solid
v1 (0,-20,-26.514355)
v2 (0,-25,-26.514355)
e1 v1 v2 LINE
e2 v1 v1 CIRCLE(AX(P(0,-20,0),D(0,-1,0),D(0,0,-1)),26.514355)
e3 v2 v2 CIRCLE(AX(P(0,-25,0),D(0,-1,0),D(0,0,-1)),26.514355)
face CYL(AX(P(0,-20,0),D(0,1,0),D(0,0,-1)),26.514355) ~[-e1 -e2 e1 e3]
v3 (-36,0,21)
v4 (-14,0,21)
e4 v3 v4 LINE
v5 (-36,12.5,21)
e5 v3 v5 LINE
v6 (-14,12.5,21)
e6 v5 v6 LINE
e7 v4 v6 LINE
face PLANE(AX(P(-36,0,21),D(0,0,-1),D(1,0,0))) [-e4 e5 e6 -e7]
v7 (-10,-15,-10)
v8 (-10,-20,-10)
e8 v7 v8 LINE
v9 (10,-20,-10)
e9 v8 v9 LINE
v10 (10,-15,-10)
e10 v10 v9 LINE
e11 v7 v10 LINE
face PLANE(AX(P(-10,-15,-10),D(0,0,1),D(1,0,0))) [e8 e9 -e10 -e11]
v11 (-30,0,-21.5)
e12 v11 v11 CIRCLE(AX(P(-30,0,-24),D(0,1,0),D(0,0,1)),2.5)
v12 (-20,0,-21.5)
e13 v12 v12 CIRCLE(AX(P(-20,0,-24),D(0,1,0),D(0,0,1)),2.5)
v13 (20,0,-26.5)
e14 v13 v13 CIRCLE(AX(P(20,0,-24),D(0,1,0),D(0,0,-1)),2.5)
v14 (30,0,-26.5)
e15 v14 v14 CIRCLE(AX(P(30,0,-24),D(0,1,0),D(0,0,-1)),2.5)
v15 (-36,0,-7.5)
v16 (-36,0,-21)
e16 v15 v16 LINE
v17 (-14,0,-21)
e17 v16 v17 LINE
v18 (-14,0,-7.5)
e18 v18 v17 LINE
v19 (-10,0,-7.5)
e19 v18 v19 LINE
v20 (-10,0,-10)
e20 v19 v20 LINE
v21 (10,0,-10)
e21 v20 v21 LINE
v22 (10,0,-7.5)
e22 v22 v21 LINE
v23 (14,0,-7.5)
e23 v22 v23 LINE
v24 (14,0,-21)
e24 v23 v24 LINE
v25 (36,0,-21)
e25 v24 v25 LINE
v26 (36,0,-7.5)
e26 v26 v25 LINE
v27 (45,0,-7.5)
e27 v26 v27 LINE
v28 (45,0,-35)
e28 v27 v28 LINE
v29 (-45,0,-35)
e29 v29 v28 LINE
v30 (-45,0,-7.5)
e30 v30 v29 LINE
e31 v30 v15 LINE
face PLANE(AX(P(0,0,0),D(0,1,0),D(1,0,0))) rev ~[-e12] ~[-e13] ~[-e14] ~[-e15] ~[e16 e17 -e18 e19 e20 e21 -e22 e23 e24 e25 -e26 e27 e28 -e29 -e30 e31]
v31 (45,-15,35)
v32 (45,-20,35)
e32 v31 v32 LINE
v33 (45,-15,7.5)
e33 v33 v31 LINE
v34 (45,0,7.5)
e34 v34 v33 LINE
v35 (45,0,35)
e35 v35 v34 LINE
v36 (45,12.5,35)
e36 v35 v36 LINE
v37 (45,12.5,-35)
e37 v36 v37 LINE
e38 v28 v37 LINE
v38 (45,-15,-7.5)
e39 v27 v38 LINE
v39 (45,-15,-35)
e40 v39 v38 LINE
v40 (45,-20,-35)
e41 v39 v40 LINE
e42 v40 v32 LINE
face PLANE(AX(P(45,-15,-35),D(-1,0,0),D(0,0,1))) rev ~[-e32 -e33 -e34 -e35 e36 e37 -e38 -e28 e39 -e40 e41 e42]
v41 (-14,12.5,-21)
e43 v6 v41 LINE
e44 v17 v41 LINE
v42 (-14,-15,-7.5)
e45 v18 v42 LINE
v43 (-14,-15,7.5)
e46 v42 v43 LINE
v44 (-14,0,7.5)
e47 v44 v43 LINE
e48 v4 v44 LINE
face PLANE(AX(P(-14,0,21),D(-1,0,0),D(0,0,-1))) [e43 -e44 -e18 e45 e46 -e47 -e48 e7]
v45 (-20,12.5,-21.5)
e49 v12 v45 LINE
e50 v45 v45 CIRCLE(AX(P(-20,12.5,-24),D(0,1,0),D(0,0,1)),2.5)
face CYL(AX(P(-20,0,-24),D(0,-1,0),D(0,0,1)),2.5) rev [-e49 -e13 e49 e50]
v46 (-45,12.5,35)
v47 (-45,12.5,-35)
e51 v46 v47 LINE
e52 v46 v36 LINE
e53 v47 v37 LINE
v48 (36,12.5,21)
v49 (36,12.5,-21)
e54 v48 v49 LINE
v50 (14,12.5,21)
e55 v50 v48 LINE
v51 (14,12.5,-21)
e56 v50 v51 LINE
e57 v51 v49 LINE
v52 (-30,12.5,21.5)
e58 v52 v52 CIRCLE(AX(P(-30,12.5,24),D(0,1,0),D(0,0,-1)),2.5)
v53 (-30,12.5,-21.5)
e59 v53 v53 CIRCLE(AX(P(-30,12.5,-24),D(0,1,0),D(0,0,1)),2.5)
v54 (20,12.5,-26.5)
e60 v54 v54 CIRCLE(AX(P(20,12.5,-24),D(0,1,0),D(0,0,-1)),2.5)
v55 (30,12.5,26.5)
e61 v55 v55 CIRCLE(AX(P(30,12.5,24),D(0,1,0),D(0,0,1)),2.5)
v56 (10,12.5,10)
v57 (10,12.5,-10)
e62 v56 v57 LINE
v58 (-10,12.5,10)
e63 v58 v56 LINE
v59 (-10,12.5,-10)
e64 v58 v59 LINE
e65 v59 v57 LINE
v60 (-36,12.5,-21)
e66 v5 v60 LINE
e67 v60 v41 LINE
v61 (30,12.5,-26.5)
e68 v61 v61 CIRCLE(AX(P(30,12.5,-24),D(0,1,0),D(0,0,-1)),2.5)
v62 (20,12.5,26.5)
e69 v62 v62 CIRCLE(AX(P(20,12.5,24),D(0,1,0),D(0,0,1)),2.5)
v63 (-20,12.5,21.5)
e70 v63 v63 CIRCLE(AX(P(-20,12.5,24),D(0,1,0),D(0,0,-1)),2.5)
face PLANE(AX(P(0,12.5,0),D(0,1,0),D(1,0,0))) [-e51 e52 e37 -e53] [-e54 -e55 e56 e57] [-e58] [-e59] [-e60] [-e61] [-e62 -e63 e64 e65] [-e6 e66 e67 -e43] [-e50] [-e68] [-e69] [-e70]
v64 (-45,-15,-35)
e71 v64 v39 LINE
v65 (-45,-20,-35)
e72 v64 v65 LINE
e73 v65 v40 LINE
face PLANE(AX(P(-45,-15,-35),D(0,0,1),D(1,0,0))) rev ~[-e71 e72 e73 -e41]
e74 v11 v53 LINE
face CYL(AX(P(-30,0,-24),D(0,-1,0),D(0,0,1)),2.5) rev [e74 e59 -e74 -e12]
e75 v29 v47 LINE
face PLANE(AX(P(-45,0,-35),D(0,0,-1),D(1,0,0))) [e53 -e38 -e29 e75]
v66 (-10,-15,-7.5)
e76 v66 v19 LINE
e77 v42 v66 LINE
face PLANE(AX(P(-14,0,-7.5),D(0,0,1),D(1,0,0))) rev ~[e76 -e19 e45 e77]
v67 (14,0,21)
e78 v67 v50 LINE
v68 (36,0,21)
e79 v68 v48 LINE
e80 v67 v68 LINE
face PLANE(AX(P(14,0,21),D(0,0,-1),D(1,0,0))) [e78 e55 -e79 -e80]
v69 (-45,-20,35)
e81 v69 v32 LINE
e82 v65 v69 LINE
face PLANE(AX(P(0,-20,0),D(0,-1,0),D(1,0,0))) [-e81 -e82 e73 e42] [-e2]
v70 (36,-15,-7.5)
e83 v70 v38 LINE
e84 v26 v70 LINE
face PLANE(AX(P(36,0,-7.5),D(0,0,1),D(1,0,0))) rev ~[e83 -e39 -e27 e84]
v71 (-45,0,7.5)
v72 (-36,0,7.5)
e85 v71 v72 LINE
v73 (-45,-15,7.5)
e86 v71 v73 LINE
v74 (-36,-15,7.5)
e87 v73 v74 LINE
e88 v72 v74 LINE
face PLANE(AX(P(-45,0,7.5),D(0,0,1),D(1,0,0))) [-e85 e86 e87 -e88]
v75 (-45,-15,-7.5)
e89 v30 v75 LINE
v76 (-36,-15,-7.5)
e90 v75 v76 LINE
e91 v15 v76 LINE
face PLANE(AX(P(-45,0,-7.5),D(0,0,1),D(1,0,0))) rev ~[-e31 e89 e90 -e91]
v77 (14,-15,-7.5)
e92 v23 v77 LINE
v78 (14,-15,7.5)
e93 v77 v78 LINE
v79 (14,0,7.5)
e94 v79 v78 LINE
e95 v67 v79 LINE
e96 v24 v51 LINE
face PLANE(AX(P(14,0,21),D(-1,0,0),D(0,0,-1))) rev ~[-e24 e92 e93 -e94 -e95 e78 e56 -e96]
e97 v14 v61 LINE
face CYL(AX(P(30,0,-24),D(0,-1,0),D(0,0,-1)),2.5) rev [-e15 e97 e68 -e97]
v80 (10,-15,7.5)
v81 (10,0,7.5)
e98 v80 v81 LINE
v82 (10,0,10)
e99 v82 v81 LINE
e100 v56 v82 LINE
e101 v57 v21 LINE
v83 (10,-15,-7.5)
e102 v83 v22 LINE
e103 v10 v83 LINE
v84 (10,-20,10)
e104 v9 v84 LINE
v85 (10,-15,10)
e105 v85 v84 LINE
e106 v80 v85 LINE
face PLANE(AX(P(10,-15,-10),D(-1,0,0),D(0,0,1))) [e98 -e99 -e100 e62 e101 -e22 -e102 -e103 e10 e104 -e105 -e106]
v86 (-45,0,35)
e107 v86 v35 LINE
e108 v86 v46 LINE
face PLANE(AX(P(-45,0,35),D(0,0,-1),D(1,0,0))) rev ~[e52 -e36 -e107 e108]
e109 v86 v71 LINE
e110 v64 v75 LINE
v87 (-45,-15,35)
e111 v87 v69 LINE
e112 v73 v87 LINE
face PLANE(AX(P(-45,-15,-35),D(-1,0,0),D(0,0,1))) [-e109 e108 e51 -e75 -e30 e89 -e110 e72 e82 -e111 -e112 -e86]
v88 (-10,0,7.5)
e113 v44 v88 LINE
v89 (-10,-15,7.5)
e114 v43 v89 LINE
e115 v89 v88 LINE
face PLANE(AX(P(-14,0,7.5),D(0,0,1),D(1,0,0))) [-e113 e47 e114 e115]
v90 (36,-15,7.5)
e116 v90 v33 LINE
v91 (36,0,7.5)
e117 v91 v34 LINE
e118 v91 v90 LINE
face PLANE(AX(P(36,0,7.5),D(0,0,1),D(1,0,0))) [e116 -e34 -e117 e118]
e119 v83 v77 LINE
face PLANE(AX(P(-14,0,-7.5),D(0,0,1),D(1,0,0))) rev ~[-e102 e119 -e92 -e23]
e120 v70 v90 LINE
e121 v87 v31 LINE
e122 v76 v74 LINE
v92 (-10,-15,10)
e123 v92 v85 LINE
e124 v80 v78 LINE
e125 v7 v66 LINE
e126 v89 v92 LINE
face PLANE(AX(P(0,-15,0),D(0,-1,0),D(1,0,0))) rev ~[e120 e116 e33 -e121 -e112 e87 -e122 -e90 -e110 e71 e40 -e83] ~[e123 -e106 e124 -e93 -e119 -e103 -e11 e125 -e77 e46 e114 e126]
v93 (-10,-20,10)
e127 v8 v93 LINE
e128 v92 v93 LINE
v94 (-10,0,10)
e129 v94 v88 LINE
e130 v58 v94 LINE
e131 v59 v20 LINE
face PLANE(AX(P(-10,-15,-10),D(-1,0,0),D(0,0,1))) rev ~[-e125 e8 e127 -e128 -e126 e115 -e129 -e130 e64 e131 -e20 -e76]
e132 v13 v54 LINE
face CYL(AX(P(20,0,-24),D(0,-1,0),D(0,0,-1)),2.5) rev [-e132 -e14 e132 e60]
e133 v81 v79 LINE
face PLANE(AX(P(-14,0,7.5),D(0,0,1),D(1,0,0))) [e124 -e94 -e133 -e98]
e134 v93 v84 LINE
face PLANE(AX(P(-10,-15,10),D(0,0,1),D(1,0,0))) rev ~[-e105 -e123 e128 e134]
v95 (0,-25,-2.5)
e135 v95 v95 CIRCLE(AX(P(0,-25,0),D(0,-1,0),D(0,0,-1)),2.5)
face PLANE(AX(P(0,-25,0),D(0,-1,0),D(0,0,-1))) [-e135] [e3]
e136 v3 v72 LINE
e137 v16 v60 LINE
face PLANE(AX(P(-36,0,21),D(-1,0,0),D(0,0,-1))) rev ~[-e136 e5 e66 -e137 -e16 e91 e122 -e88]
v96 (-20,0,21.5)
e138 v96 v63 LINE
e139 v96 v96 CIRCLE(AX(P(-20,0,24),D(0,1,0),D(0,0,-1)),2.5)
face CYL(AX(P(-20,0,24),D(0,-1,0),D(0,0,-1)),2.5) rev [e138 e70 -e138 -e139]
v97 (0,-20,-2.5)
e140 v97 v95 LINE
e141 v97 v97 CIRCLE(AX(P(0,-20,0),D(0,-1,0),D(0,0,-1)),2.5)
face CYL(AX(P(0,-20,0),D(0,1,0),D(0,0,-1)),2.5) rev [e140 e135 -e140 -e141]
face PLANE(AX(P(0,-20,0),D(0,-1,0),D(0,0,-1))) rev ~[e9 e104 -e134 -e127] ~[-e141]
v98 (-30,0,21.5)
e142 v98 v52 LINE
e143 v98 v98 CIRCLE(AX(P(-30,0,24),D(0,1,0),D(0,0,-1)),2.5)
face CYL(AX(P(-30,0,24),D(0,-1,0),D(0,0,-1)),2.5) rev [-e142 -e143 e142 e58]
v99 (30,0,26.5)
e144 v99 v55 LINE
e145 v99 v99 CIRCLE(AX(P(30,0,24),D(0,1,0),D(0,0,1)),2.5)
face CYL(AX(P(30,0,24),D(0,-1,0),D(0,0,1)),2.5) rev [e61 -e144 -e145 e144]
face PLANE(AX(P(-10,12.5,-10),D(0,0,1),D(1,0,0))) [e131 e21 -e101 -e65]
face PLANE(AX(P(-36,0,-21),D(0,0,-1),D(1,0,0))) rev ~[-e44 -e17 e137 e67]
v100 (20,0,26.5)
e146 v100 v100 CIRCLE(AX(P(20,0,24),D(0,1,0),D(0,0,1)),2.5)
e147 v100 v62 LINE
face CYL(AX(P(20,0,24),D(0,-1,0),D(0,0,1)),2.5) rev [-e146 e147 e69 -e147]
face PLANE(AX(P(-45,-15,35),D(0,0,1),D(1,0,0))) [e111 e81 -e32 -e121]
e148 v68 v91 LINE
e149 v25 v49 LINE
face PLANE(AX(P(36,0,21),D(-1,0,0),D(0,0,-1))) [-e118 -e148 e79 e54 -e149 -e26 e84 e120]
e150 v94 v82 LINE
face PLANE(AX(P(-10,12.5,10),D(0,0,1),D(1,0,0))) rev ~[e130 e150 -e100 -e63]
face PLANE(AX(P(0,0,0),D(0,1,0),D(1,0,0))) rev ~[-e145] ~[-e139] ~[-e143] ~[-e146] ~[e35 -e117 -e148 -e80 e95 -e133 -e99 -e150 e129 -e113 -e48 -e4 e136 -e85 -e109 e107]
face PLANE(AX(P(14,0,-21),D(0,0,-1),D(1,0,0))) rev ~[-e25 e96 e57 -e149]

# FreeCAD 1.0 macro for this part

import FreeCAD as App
import Part
import Sketcher


def add_polygon(sketch, points):
    """Adds a closed chain of lines whose ends are joined by coincident constraints."""
    first, n = sketch.GeometryCount, len(points)
    for a, b in zip(points, points[1:] + points[:1]):
        sketch.addGeometry(Part.LineSegment(App.Vector(*a, 0), App.Vector(*b, 0)), False)
    for i in range(n):
        sketch.addConstraint(Sketcher.Constraint("Coincident", first + i, 2, first + (i + 1) % n, 1))

doc = App.newDocument("Part")
body = doc.addObject("PartDesign::Body", "Body")

sketch1 = body.newObject("Sketcher::SketchObject", "Sketch")
sketch1.AttachmentSupport = (doc.getObject("XZ_Plane"), [""])
sketch1.MapMode = "FlatFace"
add_polygon(sketch1, [(-45, -35), (-45, 35), (45, 35), (45, -35)])
sketch1.addGeometry(Part.Circle(App.Vector(-30, 24, 0), App.Vector(0, 0, 1), 2.5), False)
sketch1.addGeometry(Part.Circle(App.Vector(-20, 24, 0), App.Vector(0, 0, 1), 2.5), False)
sketch1.addGeometry(Part.Circle(App.Vector(20, 24, 0), App.Vector(0, 0, 1), 2.5), False)
sketch1.addGeometry(Part.Circle(App.Vector(30, 24, 0), App.Vector(0, 0, 1), 2.5), False)
add_polygon(sketch1, [(-14, 21), (-36, 21), (-36, -21), (-14, -21)])
sketch1.addGeometry(Part.Circle(App.Vector(-30, -24, 0), App.Vector(0, 0, 1), 2.5), False)
sketch1.addGeometry(Part.Circle(App.Vector(-20, -24, 0), App.Vector(0, 0, 1), 2.5), False)
add_polygon(sketch1, [(36, 21), (14, 21), (14, -21), (36, -21)])
sketch1.addGeometry(Part.Circle(App.Vector(20, -24, 0), App.Vector(0, 0, 1), 2.5), False)
sketch1.addGeometry(Part.Circle(App.Vector(30, -24, 0), App.Vector(0, 0, 1), 2.5), False)
sketch1.addConstraint(Sketcher.Constraint("Vertical", 0))
sketch1.addConstraint(Sketcher.Constraint("Horizontal", 1))
sketch1.addConstraint(Sketcher.Constraint("Vertical", 2))
sketch1.addConstraint(Sketcher.Constraint("Horizontal", 3))
sketch1.addConstraint(Sketcher.Constraint("Horizontal", 8))
sketch1.addConstraint(Sketcher.Constraint("Vertical", 9))
sketch1.addConstraint(Sketcher.Constraint("Horizontal", 10))
sketch1.addConstraint(Sketcher.Constraint("Vertical", 11))
sketch1.addConstraint(Sketcher.Constraint("Horizontal", 14))
sketch1.addConstraint(Sketcher.Constraint("Vertical", 15))
sketch1.addConstraint(Sketcher.Constraint("Horizontal", 16))
sketch1.addConstraint(Sketcher.Constraint("Vertical", 17))
sketch1.addConstraint(Sketcher.Constraint("Equal", 4, 5))
sketch1.addConstraint(Sketcher.Constraint("Equal", 5, 6))
sketch1.addConstraint(Sketcher.Constraint("Equal", 6, 7))
sketch1.addConstraint(Sketcher.Constraint("Equal", 7, 12))
sketch1.addConstraint(Sketcher.Constraint("Equal", 12, 13))
sketch1.addConstraint(Sketcher.Constraint("Equal", 13, 18))
sketch1.addConstraint(Sketcher.Constraint("Equal", 18, 19))
sketch1.addConstraint(Sketcher.Constraint("Symmetric", 7, 3, 12, 3, -1, 1))
sketch1.addConstraint(Sketcher.Constraint("Symmetric", 6, 3, 13, 3, -1, 1))
sketch1.addConstraint(Sketcher.Constraint("Symmetric", 5, 3, 18, 3, -1, 1))
sketch1.addConstraint(Sketcher.Constraint("Symmetric", 4, 3, 19, 3, -1, 1))
sketch1.addConstraint(Sketcher.Constraint("Symmetric", 0, 2, 2, 2, -1, 1))
sketch1.addConstraint(Sketcher.Constraint("Symmetric", 10, 2, 14, 2, -1, 1))
sketch1.addConstraint(Sketcher.Constraint("Symmetric", 8, 2, 16, 2, -1, 1))
sketch1.addConstraint(Sketcher.Constraint("Symmetric", 5, 3, 6, 3, -2))
sketch1.addConstraint(Sketcher.Constraint("Symmetric", 4, 3, 7, 3, -2))
sketch1.addConstraint(Sketcher.Constraint("Horizontal", 4, 3, 5, 3))
sketch1.addConstraint(Sketcher.Constraint("Horizontal", 11, 2, 14, 2))
sketch1.addConstraint(Sketcher.Constraint("Diameter", 4, 5.0))
sketch1.addConstraint(Sketcher.Constraint("DistanceX", 1, 1, 1, 2, 90.0))
sketch1.addConstraint(Sketcher.Constraint("DistanceX", 8, 2, 8, 1, 22.0))
sketch1.addConstraint(Sketcher.Constraint("DistanceY", 0, 1, 0, 2, 70.0))
sketch1.addConstraint(Sketcher.Constraint("DistanceY", 9, 2, 9, 1, 42.0))
sketch1.addConstraint(Sketcher.Constraint("DistanceX", 4, 3, -1, 1, 30.0))
sketch1.addConstraint(Sketcher.Constraint("DistanceY", -1, 1, 4, 3, 24.0))
sketch1.addConstraint(Sketcher.Constraint("DistanceX", 5, 3, -1, 1, 20.0))
sketch1.addConstraint(Sketcher.Constraint("DistanceX", 8, 2, -1, 1, 36.0))
pad1 = body.newObject("PartDesign::Pad", "Pad")
pad1.Profile = sketch1
pad1.Length = 12.5
pad1.Reversed = True

sketch2 = body.newObject("Sketcher::SketchObject", "Sketch001")
sketch2.AttachmentSupport = (doc.getObject("XZ_Plane"), [""])
sketch2.MapMode = "FlatFace"
add_polygon(sketch2, [(-45, 7.5), (-45, -7.5), (-36, -7.5), (-36, 7.5)])
add_polygon(sketch2, [(-14, 7.5), (-14, -7.5), (14, -7.5), (14, 7.5)])
add_polygon(sketch2, [(36, 7.5), (36, -7.5), (45, -7.5), (45, 7.5)])
sketch2.addConstraint(Sketcher.Constraint("Vertical", 0))
sketch2.addConstraint(Sketcher.Constraint("Horizontal", 1))
sketch2.addConstraint(Sketcher.Constraint("Vertical", 2))
sketch2.addConstraint(Sketcher.Constraint("Horizontal", 3))
sketch2.addConstraint(Sketcher.Constraint("Vertical", 4))
sketch2.addConstraint(Sketcher.Constraint("Horizontal", 5))
sketch2.addConstraint(Sketcher.Constraint("Vertical", 6))
sketch2.addConstraint(Sketcher.Constraint("Horizontal", 7))
sketch2.addConstraint(Sketcher.Constraint("Vertical", 8))
sketch2.addConstraint(Sketcher.Constraint("Horizontal", 9))
sketch2.addConstraint(Sketcher.Constraint("Vertical", 10))
sketch2.addConstraint(Sketcher.Constraint("Horizontal", 11))
sketch2.addConstraint(Sketcher.Constraint("Symmetric", 4, 2, 6, 2, -1, 1))
sketch2.addConstraint(Sketcher.Constraint("Symmetric", 2, 2, 8, 2, -1, 1))
sketch2.addConstraint(Sketcher.Constraint("Symmetric", 0, 2, 10, 2, -1, 1))
sketch2.addConstraint(Sketcher.Constraint("Horizontal", 1, 2, 4, 2))
sketch2.addConstraint(Sketcher.Constraint("Horizontal", 3, 2, 6, 2))
sketch2.addConstraint(Sketcher.Constraint("DistanceX", 1, 1, 1, 2, 9.0))
sketch2.addConstraint(Sketcher.Constraint("DistanceX", 5, 1, 5, 2, 28.0))
sketch2.addConstraint(Sketcher.Constraint("DistanceY", 0, 2, 0, 1, 15.0))
sketch2.addConstraint(Sketcher.Constraint("DistanceX", 0, 2, -1, 1, 45.0))
pad2 = body.newObject("PartDesign::Pad", "Pad001")
pad2.Profile = sketch2
pad2.Length = 15

sketch3 = body.newObject("Sketcher::SketchObject", "Sketch002")
sketch3.AttachmentSupport = (doc.getObject("XZ_Plane"), [""])
sketch3.MapMode = "FlatFace"
sketch3.AttachmentOffset = App.Placement(App.Vector(0, 0, -12.5), App.Rotation())
add_polygon(sketch3, [(-10, -10), (-10, 10), (10, 10), (10, -10)])
sketch3.addConstraint(Sketcher.Constraint("Vertical", 0))
sketch3.addConstraint(Sketcher.Constraint("Horizontal", 1))
sketch3.addConstraint(Sketcher.Constraint("Vertical", 2))
sketch3.addConstraint(Sketcher.Constraint("Horizontal", 3))
sketch3.addConstraint(Sketcher.Constraint("Symmetric", 0, 2, 2, 2, -1, 1))
sketch3.addConstraint(Sketcher.Constraint("Equal", 3, 0))
sketch3.addConstraint(Sketcher.Constraint("DistanceX", 1, 1, 1, 2, 20.0))
pocket1 = body.newObject("PartDesign::Pocket", "Pocket")
pocket1.Profile = sketch3
pocket1.Type = "ThroughAll"
pocket1.Reversed = True

sketch4 = body.newObject("Sketcher::SketchObject", "Sketch003")
sketch4.AttachmentSupport = (doc.getObject("XZ_Plane"), [""])
sketch4.MapMode = "FlatFace"
sketch4.AttachmentOffset = App.Placement(App.Vector(0, 0, 15), App.Rotation())
add_polygon(sketch4, [(-45, 35), (-45, -35), (45, -35), (45, 35)])
add_polygon(sketch4, [(10, -10), (-10, -10), (-10, 10), (10, 10)])
sketch4.addConstraint(Sketcher.Constraint("Vertical", 0))
sketch4.addConstraint(Sketcher.Constraint("Horizontal", 1))
sketch4.addConstraint(Sketcher.Constraint("Vertical", 2))
sketch4.addConstraint(Sketcher.Constraint("Horizontal", 3))
sketch4.addConstraint(Sketcher.Constraint("Horizontal", 4))
sketch4.addConstraint(Sketcher.Constraint("Vertical", 5))
sketch4.addConstraint(Sketcher.Constraint("Horizontal", 6))
sketch4.addConstraint(Sketcher.Constraint("Vertical", 7))
sketch4.addConstraint(Sketcher.Constraint("Symmetric", 0, 2, 2, 2, -1, 1))
sketch4.addConstraint(Sketcher.Constraint("Symmetric", 4, 2, 6, 2, -1, 1))
sketch4.addConstraint(Sketcher.Constraint("Equal", 6, 5))
sketch4.addConstraint(Sketcher.Constraint("DistanceX", 1, 1, 1, 2, 90.0))
sketch4.addConstraint(Sketcher.Constraint("DistanceX", 4, 2, 4, 1, 20.0))
sketch4.addConstraint(Sketcher.Constraint("DistanceY", 0, 2, 0, 1, 70.0))
pad3 = body.newObject("PartDesign::Pad", "Pad002")
pad3.Profile = sketch4
pad3.Length = 5

sketch5 = body.newObject("Sketcher::SketchObject", "Sketch004")
sketch5.AttachmentSupport = (doc.getObject("XZ_Plane"), [""])
sketch5.MapMode = "FlatFace"
sketch5.AttachmentOffset = App.Placement(App.Vector(0, 0, 20), App.Rotation())
sketch5.addGeometry(Part.Circle(App.Vector(0, 0, 0), App.Vector(0, 0, 1), 26.514355), False)
sketch5.addGeometry(Part.Circle(App.Vector(0, 0, 0), App.Vector(0, 0, 1), 2.5), False)
sketch5.addConstraint(Sketcher.Constraint("Coincident", 0, 3, -1, 1))
sketch5.addConstraint(Sketcher.Constraint("Coincident", 1, 3, -1, 1))
sketch5.addConstraint(Sketcher.Constraint("Diameter", 1, 5.0))
sketch5.addConstraint(Sketcher.Constraint("Diameter", 0, 53.028709))
pad4 = body.newObject("PartDesign::Pad", "Pad003")
pad4.Profile = sketch5
pad4.Length = 5

doc.recompute()
